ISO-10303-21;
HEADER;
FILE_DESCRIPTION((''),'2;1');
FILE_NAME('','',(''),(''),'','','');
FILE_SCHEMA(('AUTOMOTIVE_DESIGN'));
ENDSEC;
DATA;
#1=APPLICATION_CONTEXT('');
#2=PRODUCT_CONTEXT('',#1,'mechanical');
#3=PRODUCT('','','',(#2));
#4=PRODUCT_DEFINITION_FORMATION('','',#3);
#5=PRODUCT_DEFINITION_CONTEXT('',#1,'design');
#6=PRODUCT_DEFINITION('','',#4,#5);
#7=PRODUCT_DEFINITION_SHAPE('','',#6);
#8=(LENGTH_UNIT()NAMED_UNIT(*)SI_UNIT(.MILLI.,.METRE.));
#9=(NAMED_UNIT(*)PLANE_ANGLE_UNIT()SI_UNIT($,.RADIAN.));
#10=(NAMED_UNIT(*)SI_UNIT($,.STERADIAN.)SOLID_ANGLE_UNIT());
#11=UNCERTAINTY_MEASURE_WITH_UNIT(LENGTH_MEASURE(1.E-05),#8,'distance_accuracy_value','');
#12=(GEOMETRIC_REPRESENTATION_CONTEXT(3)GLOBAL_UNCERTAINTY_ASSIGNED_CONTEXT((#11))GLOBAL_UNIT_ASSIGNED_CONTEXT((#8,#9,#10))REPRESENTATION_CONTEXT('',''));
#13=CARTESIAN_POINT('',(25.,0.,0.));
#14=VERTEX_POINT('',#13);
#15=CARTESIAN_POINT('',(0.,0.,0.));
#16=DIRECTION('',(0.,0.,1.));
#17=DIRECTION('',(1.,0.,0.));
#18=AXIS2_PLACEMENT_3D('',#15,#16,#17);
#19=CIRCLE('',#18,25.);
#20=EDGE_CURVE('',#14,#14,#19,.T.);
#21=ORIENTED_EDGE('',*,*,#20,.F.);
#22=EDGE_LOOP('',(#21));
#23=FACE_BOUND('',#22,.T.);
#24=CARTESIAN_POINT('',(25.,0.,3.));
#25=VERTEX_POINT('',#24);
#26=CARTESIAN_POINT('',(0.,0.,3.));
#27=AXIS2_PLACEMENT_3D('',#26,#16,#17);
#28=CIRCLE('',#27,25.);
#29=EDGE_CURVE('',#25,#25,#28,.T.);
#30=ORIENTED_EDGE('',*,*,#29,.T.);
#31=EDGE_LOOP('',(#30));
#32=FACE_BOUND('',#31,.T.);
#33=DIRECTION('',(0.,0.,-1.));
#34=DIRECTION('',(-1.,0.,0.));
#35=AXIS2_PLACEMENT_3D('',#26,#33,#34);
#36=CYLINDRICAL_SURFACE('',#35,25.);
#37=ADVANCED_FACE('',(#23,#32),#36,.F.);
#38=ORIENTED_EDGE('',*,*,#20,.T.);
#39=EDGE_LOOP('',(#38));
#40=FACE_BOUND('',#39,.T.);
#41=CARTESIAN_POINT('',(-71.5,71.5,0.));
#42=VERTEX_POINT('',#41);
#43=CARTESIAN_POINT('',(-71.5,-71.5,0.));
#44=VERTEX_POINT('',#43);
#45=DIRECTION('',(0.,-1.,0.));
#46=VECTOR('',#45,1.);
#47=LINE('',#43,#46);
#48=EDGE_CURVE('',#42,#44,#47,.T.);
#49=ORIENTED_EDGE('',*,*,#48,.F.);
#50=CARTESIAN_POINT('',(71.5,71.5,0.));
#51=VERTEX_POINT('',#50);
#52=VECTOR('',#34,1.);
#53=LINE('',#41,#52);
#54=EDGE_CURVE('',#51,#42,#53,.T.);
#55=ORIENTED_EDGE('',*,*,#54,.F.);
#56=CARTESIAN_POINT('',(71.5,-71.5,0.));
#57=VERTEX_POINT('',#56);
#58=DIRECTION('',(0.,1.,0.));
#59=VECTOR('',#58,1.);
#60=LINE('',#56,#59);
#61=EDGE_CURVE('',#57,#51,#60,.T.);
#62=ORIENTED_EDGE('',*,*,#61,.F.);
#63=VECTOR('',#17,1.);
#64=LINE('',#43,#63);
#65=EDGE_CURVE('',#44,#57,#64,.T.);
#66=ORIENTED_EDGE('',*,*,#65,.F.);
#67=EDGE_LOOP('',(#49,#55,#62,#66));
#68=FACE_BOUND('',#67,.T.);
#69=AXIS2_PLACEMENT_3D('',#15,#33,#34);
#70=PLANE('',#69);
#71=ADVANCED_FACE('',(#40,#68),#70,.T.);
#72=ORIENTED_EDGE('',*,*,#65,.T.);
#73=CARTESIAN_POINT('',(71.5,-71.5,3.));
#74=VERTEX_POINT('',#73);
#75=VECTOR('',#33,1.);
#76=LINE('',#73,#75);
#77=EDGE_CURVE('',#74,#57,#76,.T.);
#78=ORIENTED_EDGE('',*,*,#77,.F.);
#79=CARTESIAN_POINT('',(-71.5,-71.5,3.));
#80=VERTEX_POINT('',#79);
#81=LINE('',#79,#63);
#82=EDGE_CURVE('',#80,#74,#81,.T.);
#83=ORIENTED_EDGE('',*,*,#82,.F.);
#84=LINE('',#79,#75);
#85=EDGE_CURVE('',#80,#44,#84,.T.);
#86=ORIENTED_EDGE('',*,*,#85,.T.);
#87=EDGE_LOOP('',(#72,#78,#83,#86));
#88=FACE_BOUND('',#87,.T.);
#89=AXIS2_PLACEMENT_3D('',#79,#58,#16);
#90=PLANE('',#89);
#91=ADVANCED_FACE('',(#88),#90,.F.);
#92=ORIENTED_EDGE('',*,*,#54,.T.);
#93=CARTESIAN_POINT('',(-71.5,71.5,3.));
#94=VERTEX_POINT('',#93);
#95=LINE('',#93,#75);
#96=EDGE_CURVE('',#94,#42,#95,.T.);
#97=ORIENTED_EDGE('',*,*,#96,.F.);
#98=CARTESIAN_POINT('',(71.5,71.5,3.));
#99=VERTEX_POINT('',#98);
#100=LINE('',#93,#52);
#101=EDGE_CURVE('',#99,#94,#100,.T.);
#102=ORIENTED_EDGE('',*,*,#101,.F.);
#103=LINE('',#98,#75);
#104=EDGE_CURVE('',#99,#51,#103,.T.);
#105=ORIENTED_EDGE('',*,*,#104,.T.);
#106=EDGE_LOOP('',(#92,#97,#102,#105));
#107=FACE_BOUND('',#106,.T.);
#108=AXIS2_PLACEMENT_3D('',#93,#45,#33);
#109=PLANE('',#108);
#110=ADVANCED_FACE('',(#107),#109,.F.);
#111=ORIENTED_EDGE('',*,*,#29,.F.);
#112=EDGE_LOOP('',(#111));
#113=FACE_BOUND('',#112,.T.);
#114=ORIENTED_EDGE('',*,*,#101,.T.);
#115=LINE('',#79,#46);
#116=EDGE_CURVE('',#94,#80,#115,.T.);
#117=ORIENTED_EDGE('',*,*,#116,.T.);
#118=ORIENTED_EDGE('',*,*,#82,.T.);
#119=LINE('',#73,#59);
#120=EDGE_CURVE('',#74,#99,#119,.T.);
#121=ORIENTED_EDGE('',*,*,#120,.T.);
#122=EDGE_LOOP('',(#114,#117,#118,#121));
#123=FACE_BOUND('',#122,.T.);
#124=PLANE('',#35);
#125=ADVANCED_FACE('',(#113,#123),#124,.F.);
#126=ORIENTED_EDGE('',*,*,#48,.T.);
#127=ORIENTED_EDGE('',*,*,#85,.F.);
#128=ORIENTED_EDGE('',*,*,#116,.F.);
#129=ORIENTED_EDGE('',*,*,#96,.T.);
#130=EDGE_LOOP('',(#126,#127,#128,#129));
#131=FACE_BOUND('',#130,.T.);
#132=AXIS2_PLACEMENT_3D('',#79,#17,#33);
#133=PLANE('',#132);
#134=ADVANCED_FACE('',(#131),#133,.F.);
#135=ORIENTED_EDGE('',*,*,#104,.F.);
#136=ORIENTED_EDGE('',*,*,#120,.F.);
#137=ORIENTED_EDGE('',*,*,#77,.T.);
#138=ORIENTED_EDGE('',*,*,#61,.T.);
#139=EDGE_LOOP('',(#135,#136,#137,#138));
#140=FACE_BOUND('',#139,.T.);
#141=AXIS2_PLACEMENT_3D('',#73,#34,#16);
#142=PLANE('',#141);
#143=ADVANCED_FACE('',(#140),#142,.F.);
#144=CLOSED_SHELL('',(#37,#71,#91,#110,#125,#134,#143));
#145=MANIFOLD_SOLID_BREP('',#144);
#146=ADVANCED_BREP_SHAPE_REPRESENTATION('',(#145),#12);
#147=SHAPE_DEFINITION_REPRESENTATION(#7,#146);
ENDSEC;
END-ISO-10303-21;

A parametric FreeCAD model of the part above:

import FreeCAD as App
import Part
import Sketcher
Q = App.Units.Quantity

doc = App.newDocument("Part")
body = doc.addObject("PartDesign::Body", "Body")

sketch1 = body.newObject("Sketcher::SketchObject", "Sketch")
sketch1.AttachmentSupport = (doc.getObject("XY_Plane"), [""])
sketch1.MapMode = "FlatFace"
sketch1.addGeometry(Part.LineSegment(App.Vector(-72, 72, 0), App.Vector(-72, -72, 0)), False)
sketch1.addGeometry(Part.LineSegment(App.Vector(-72, -72, 0), App.Vector(72, -72, 0)), False)
sketch1.addGeometry(Part.LineSegment(App.Vector(72, -72, 0), App.Vector(72, 72, 0)), False)
sketch1.addGeometry(Part.LineSegment(App.Vector(72, 72, 0), App.Vector(-72, 72, 0)), False)
sketch1.addGeometry(Part.Circle(App.Vector(0, 0, 0), App.Vector(0, 0, 1), 25), False)
sketch1.addConstraint(Sketcher.Constraint("Coincident", 0, 2, 1, 1))
sketch1.addConstraint(Sketcher.Constraint("Coincident", 1, 2, 2, 1))
sketch1.addConstraint(Sketcher.Constraint("Coincident", 2, 2, 3, 1))
sketch1.addConstraint(Sketcher.Constraint("Coincident", 3, 2, 0, 1))
sketch1.addConstraint(Sketcher.Constraint("Vertical", 0))
sketch1.addConstraint(Sketcher.Constraint("Horizontal", 1))
sketch1.addConstraint(Sketcher.Constraint("Vertical", 2))
sketch1.addConstraint(Sketcher.Constraint("Horizontal", 3))
sketch1.addConstraint(Sketcher.Constraint("Coincident", 4, 3, -1, 1))
sketch1.addConstraint(Sketcher.Constraint("Symmetric", 0, 2, 2, 2, -1, 1))
sketch1.addConstraint(Sketcher.Constraint("Equal", 3, 0))
sketch1.addConstraint(Sketcher.Constraint("Diameter", 4, Q("50 mm")))
sketch1.addConstraint(Sketcher.Constraint("DistanceX", 1, 1, 1, 2, Q("143 mm")))
pad1 = body.newObject("PartDesign::Pad", "Pad")
pad1.Profile = sketch1
pad1.Length = 3

doc.recompute()
